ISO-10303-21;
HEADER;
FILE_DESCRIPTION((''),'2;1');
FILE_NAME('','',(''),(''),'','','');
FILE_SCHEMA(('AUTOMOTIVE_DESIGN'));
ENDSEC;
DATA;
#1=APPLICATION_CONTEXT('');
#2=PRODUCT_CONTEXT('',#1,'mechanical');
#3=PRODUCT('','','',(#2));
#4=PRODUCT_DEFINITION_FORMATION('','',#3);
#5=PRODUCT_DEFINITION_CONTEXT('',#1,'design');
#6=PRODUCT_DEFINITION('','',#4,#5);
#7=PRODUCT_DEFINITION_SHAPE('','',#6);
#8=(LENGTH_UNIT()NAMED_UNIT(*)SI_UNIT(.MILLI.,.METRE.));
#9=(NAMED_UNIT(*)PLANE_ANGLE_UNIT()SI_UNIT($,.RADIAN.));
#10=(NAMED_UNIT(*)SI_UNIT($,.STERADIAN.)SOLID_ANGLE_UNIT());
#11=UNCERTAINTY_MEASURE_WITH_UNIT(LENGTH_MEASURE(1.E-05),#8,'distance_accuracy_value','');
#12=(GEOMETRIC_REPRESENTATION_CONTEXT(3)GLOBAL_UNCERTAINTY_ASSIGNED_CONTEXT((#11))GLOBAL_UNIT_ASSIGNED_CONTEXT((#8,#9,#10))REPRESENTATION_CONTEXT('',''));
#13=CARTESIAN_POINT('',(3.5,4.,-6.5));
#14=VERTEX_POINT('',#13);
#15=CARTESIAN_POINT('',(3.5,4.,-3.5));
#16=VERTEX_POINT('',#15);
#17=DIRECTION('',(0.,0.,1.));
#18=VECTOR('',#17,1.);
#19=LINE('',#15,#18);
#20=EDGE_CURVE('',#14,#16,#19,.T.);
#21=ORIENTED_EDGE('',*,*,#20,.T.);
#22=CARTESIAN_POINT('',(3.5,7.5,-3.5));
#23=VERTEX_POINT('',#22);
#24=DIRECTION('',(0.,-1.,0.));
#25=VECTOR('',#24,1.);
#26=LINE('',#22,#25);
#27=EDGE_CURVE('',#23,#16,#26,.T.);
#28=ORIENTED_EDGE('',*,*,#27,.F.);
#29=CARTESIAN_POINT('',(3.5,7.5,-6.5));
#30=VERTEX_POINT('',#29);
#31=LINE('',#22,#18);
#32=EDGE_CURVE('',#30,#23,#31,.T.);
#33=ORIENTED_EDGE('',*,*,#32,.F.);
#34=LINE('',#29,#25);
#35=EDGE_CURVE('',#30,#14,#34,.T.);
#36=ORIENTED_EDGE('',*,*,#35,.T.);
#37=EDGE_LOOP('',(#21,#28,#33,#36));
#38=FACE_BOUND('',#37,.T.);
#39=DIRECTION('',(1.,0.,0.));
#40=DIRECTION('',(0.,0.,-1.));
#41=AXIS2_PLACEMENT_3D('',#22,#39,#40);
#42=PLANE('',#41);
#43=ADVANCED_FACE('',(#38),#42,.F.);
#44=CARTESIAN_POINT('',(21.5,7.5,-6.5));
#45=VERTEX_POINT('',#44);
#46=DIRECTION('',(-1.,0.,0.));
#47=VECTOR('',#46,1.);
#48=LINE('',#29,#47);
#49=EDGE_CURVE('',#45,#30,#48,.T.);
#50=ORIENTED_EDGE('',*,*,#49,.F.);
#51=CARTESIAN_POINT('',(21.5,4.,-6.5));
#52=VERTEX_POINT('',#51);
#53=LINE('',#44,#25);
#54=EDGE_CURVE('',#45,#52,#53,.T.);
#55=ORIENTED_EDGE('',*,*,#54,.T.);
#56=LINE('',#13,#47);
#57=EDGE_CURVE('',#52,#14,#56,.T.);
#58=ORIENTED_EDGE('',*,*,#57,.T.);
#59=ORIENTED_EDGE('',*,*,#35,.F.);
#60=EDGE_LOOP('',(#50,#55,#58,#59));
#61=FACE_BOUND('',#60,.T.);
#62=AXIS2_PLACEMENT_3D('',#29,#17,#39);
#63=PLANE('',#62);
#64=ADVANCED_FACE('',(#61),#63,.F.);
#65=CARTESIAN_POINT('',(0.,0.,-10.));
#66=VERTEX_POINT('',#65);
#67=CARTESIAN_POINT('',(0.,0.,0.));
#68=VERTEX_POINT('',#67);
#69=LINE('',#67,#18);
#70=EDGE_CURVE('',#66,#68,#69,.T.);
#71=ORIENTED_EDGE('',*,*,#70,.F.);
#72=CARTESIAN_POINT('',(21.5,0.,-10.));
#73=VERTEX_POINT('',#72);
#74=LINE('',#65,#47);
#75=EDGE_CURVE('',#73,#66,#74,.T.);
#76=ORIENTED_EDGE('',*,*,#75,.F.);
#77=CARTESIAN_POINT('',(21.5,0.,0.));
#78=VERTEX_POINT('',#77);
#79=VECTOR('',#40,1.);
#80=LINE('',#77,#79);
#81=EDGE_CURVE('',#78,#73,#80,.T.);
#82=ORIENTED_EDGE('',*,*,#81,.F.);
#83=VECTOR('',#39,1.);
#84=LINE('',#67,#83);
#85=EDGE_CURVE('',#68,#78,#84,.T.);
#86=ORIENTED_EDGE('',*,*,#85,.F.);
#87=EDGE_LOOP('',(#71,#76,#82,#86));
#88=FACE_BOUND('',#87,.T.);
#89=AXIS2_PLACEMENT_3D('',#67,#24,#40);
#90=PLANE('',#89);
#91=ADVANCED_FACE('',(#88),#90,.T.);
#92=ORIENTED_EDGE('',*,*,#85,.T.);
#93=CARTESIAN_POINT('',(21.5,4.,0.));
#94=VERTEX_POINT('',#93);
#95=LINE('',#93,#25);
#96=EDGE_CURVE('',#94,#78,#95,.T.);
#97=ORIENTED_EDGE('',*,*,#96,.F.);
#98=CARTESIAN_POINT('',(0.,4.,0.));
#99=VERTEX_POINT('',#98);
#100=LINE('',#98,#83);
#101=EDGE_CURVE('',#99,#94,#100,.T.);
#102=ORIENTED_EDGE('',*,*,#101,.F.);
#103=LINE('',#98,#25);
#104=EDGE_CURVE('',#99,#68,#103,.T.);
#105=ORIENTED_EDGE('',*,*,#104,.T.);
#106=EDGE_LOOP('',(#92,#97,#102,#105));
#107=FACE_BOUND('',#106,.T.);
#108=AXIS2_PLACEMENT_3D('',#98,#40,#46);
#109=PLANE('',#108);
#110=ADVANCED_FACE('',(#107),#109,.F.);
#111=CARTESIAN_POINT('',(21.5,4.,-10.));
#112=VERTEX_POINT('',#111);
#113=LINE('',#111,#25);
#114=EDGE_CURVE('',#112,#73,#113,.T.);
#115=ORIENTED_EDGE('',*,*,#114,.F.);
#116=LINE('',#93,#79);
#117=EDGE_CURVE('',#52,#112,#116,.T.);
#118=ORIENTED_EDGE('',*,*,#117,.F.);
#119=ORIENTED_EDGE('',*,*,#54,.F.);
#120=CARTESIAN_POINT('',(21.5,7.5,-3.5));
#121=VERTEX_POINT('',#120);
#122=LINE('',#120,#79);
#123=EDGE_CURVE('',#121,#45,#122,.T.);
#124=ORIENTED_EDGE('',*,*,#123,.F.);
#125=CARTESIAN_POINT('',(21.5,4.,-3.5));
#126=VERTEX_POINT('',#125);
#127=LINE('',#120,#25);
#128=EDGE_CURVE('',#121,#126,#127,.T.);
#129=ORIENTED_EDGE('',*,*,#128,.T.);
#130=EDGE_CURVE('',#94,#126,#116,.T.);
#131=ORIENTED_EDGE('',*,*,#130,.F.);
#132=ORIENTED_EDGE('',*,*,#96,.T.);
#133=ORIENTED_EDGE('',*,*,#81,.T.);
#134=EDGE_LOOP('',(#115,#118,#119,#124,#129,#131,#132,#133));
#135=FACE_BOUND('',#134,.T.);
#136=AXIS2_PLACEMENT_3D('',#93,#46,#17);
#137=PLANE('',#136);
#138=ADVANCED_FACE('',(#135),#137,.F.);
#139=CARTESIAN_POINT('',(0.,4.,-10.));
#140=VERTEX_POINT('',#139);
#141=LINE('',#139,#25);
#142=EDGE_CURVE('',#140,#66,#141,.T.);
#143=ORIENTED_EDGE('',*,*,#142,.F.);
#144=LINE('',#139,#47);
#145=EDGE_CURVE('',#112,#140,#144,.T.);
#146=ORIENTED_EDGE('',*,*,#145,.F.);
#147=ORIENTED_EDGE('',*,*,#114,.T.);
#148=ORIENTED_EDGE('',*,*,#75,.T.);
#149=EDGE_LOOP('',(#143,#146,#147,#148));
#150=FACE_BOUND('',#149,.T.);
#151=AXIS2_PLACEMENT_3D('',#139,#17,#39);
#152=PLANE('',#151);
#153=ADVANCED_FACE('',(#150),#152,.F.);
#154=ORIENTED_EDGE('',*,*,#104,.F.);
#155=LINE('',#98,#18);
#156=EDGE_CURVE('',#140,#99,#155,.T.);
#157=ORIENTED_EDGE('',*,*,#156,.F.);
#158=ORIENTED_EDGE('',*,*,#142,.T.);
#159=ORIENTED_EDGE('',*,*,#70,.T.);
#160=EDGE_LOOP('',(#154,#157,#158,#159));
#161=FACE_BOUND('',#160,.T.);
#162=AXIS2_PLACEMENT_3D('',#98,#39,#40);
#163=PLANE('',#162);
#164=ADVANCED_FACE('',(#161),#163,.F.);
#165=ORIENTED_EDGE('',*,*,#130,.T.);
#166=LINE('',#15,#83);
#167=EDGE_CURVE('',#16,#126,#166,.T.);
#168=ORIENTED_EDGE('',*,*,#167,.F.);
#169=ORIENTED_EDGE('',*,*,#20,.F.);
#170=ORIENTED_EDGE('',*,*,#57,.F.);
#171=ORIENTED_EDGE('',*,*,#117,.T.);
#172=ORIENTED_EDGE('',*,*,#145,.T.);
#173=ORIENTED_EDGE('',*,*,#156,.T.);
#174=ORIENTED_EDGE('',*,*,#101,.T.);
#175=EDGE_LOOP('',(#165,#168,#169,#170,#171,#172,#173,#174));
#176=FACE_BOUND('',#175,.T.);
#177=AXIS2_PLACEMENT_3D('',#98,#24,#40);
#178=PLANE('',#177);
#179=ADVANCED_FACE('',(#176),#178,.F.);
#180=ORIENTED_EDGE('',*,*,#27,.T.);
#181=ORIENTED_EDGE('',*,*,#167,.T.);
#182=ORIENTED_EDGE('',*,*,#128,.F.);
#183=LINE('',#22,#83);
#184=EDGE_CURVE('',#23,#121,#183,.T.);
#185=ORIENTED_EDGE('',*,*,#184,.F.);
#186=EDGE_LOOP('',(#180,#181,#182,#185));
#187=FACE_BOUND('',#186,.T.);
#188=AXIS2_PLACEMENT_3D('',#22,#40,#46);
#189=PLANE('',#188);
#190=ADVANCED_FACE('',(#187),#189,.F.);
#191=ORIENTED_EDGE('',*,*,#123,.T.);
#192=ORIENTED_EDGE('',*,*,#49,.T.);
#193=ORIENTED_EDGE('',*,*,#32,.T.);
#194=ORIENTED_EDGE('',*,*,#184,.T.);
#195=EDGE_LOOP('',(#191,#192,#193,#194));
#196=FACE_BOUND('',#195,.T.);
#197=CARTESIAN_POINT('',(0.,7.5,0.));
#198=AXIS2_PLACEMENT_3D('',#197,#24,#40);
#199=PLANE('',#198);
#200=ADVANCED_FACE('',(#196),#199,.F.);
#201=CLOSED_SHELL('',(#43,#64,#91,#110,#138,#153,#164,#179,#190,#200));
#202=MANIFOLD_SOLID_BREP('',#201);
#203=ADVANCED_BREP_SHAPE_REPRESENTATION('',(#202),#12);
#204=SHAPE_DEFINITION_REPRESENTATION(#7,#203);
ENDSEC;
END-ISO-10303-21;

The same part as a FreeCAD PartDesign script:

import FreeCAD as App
import Part
import Sketcher


def add_polygon(sketch, points):
    """Adds a closed chain of lines whose ends are joined by coincident constraints."""
    first, n = sketch.GeometryCount, len(points)
    for a, b in zip(points, points[1:] + points[:1]):
        sketch.addGeometry(Part.LineSegment(App.Vector(*a, 0), App.Vector(*b, 0)), False)
    for i in range(n):
        sketch.addConstraint(Sketcher.Constraint("Coincident", first + i, 2, first + (i + 1) % n, 1))

doc = App.newDocument("Part")
body = doc.addObject("PartDesign::Body", "Body")

sketch1 = body.newObject("Sketcher::SketchObject", "Sketch")
sketch1.AttachmentSupport = (doc.getObject("XZ_Plane"), [""])
sketch1.MapMode = "FlatFace"
add_polygon(sketch1, [(0, -10), (0, 0), (21.5, 0), (21.5, -10)])
sketch1.addConstraint([
    Sketcher.Constraint("Vertical", 0),
    Sketcher.Constraint("Horizontal", 1),
    Sketcher.Constraint("Vertical", 2),
    Sketcher.Constraint("Horizontal", 3),
    Sketcher.Constraint("Coincident", 0, 2, -1, 1),
    Sketcher.Constraint("DistanceY", 0, 1, 0, 2, 10.0),
    Sketcher.Constraint("DistanceX", 1, 1, 1, 2, 21.5),
])
pad1 = body.newObject("PartDesign::Pad", "Pad")
pad1.Profile = sketch1
pad1.Length = 4
pad1.Reversed = True

sketch2 = body.newObject("Sketcher::SketchObject", "Sketch001")
sketch2.AttachmentSupport = (doc.getObject("XZ_Plane"), [""])
sketch2.MapMode = "FlatFace"
sketch2.AttachmentOffset = App.Placement(App.Vector(0, 0, -4), App.Rotation())
add_polygon(sketch2, [(3.5, -6.5), (3.5, -3.5), (21.5, -3.5), (21.5, -6.5)])
sketch2.addConstraint([
    Sketcher.Constraint("Vertical", 0),
    Sketcher.Constraint("Horizontal", 1),
    Sketcher.Constraint("Vertical", 2),
    Sketcher.Constraint("Horizontal", 3),
    Sketcher.Constraint("DistanceX", 1, 1, 1, 2, 18.0),
    Sketcher.Constraint("DistanceY", 0, 1, 0, 2, 3.0),
    Sketcher.Constraint("DistanceX", -1, 1, 0, 2, 3.5),
    Sketcher.Constraint("DistanceY", 0, 2, -1, 1, 3.5),
])
pad2 = body.newObject("PartDesign::Pad", "Pad001")
pad2.Profile = sketch2
pad2.Length = 3.5
pad2.Reversed = True

doc.recompute()
